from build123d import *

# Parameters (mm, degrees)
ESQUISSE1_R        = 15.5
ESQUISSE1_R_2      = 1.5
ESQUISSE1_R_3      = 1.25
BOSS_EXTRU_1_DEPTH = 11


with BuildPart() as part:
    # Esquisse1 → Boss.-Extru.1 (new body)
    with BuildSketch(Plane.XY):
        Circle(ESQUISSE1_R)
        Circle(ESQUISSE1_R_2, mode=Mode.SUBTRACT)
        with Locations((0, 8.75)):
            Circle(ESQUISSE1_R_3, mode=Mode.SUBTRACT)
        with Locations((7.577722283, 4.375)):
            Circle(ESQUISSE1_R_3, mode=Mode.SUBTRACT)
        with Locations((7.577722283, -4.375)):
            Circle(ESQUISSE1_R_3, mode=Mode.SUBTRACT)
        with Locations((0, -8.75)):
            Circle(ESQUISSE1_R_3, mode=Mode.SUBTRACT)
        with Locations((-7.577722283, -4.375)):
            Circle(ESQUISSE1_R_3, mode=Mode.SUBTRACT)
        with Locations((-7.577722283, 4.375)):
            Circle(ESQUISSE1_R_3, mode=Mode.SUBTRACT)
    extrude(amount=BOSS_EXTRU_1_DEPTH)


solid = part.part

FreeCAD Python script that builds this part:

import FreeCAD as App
import Part
import Sketcher
from FreeCAD import Vector

doc = App.newDocument("Part")
body = doc.addObject("PartDesign::Body", "Body")

sketch1 = doc.addObject("Sketcher::SketchObject", "Sketch")
body.addObject(sketch1)
sketch1.AttachmentSupport = (doc.XY_Plane, [""])
sketch1.MapMode = "FlatFace"
sketch1.addGeometry(Part.Circle(Vector(0, 0, 0), Vector(0, 0, 1), 15.5), False)
sketch1.addGeometry(Part.Circle(Vector(-7.577722, -4.375, 0), Vector(0, 0, 1), 1.25), False)
sketch1.addGeometry(Part.Circle(Vector(0, -8.75, 0), Vector(0, 0, 1), 1.25), False)
sketch1.addGeometry(Part.Circle(Vector(7.577722, -4.375, 0), Vector(0, 0, 1), 1.25), False)
sketch1.addGeometry(Part.Circle(Vector(-7.577722, 4.375, 0), Vector(0, 0, 1), 1.25), False)
sketch1.addGeometry(Part.Circle(Vector(0, 0, 0), Vector(0, 0, 1), 1.5), False)
sketch1.addGeometry(Part.Circle(Vector(7.577722, 4.375, 0), Vector(0, 0, 1), 1.25), False)
sketch1.addGeometry(Part.Circle(Vector(0, 8.75, 0), Vector(0, 0, 1), 1.25), False)
sketch1.addConstraint(Sketcher.Constraint("Coincident", 0, 3, -1, 1))
sketch1.addConstraint(Sketcher.Constraint("Coincident", 5, 3, -1, 1))
sketch1.addConstraint(Sketcher.Constraint("Equal", 1, 2))
sketch1.addConstraint(Sketcher.Constraint("Equal", 2, 3))
sketch1.addConstraint(Sketcher.Constraint("Equal", 3, 4))
sketch1.addConstraint(Sketcher.Constraint("Equal", 4, 6))
sketch1.addConstraint(Sketcher.Constraint("Equal", 6, 7))
sketch1.addConstraint(Sketcher.Constraint("Symmetric", 3, 3, 4, 3, -1, 1))
sketch1.addConstraint(Sketcher.Constraint("Symmetric", 1, 3, 6, 3, -1, 1))
sketch1.addConstraint(Sketcher.Constraint("Symmetric", 2, 3, 7, 3, -1, 1))
sketch1.addConstraint(Sketcher.Constraint("Symmetric", 1, 3, 3, 3, -2))
sketch1.addConstraint(Sketcher.Constraint("PointOnObject", 2, 3, -2))
sketch1.addConstraint(Sketcher.Constraint("Diameter", 0, 31.0))
sketch1.addConstraint(Sketcher.Constraint("Diameter", 5, 3.0))
sketch1.addConstraint(Sketcher.Constraint("Diameter", 1, 2.5))
sketch1.addConstraint(Sketcher.Constraint("DistanceY", 2, 3, -1, 1, 8.75))
sketch1.addConstraint(Sketcher.Constraint("DistanceY", 1, 3, 4, 3, 8.75))
sketch1.addConstraint(Sketcher.Constraint("DistanceX", 1, 3, -1, 1, 7.577722))
pad1 = doc.addObject("PartDesign::Pad", "Pad")
body.addObject(pad1)
pad1.Profile = sketch1
pad1.Length = 11

doc.recompute()
